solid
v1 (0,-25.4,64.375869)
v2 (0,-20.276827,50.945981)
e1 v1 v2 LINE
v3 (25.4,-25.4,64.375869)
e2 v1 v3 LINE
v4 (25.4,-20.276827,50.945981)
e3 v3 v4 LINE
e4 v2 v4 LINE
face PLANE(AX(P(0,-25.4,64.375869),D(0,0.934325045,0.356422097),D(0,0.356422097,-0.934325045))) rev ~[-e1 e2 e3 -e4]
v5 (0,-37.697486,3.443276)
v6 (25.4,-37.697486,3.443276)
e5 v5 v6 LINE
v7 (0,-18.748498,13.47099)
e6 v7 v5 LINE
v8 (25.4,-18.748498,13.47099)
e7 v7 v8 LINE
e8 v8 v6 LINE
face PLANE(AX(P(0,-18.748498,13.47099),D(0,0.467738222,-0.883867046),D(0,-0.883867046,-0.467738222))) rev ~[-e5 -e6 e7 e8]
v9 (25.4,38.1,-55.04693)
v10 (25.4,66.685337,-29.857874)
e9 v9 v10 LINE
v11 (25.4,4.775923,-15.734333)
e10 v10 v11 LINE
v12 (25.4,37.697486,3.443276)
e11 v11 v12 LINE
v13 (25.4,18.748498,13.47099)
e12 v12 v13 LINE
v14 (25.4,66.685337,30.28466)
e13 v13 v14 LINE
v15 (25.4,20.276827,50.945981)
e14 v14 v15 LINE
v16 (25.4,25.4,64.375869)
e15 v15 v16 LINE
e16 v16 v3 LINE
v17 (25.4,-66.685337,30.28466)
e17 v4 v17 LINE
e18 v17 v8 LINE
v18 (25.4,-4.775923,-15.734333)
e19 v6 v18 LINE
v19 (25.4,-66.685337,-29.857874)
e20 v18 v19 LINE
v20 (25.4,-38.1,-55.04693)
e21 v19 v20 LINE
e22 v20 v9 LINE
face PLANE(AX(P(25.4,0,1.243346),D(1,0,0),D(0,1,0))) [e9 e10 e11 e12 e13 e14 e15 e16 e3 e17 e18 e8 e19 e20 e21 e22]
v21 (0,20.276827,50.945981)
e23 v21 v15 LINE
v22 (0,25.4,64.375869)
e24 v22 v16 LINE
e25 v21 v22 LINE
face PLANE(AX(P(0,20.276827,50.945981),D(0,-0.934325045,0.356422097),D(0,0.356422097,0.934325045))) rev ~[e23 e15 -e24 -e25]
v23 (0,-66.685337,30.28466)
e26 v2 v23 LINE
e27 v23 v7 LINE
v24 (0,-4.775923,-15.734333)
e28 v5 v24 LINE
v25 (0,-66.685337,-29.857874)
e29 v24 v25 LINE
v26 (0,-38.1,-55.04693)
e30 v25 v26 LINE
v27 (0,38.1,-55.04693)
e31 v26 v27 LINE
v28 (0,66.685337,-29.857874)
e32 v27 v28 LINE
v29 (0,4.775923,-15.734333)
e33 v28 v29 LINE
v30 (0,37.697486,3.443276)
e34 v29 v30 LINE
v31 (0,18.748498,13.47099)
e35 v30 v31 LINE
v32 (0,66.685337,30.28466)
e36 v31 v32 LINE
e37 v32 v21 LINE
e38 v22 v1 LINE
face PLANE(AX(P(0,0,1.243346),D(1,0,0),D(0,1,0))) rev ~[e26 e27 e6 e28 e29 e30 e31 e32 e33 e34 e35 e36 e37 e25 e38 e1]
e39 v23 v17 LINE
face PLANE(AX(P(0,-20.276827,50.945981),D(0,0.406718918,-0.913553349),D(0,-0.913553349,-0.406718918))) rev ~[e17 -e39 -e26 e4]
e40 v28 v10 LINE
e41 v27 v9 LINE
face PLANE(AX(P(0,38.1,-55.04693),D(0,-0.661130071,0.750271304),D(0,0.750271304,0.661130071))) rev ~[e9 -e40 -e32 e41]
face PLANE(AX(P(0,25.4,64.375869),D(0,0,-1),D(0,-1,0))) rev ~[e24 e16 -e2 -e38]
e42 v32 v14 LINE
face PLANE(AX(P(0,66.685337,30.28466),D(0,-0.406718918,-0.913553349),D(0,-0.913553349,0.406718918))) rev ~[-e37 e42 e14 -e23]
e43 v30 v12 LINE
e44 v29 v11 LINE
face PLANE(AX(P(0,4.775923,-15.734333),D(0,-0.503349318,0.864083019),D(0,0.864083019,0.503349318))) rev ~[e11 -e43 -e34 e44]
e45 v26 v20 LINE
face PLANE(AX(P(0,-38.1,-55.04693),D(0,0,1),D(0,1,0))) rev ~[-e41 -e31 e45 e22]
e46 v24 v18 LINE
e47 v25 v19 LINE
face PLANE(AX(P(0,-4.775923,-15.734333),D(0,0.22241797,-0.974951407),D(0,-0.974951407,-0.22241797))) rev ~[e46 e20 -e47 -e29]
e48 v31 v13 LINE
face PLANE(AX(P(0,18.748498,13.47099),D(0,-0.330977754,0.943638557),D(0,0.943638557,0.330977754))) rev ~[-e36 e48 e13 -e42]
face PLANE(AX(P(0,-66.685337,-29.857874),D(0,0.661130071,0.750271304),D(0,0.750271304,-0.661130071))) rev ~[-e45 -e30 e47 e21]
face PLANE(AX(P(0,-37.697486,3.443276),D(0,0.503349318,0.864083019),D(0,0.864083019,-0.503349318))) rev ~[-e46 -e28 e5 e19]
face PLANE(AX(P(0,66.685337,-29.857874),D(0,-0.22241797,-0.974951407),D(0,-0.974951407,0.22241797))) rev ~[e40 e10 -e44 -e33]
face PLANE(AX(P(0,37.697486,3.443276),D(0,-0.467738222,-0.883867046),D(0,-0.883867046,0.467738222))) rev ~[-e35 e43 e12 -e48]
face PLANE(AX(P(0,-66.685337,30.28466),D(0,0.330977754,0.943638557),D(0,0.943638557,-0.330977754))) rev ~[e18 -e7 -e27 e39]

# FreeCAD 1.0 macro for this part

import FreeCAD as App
import Part
import Sketcher
Q = App.Units.Quantity


def add_polygon(sketch, points):
    """Adds a closed chain of lines whose ends are joined by coincident constraints."""
    first, n = sketch.GeometryCount, len(points)
    for a, b in zip(points, points[1:] + points[:1]):
        sketch.addGeometry(Part.LineSegment(App.Vector(*a, 0), App.Vector(*b, 0)), False)
    for i in range(n):
        sketch.addConstraint(Sketcher.Constraint("Coincident", first + i, 2, first + (i + 1) % n, 1))

doc = App.newDocument("Part")
params = doc.addObject("Spreadsheet::Sheet", "Params")
for row, (alias, value) in enumerate([
    ("sketch1_width", "2 in"),
    ("sketch1_width2", "3 in"),
    ("sketch1_length", "2 in"),
    ("sketch1_length2", "1.5 in"),
    ("sketch1_length3", "2.5 in"),
    ("pad1_length", "1 in"),
], start=1):
    params.set(f"A{row}", alias)
    params.set(f"B{row}", "=" + value)
    params.setAlias(f"B{row}", alias)

body = doc.addObject("PartDesign::Body", "Body")

sketch1 = doc.addObject("Sketcher::SketchObject", "Sketch")
body.addObject(sketch1)
sketch1.AttachmentSupport = (doc.YZ_Plane, [""])
sketch1.MapMode = "FlatFace"
add_polygon(sketch1, [(25, 64), (-25, 64), (-20, 51), (-67, 30), (-19, 13), (-38, 3), (-5, -16), (-67, -30), (-38, -55), (38, -55), (67, -30), (5, -16), (38, 3), (19, 13), (67, 30), (20, 51)])
sketch1.addConstraint(Sketcher.Constraint("Horizontal", 0))
sketch1.addConstraint(Sketcher.Constraint("Horizontal", 8))
sketch1.addConstraint(Sketcher.Constraint("Symmetric", 6, 2, 9, 2, -2))
sketch1.addConstraint(Sketcher.Constraint("Symmetric", 5, 2, 10, 2, -2))
sketch1.addConstraint(Sketcher.Constraint("Symmetric", 4, 2, 11, 2, -2))
sketch1.addConstraint(Sketcher.Constraint("Symmetric", 3, 2, 12, 2, -2))
sketch1.addConstraint(Sketcher.Constraint("Symmetric", 2, 2, 13, 2, -2))
sketch1.addConstraint(Sketcher.Constraint("Symmetric", 1, 2, 14, 2, -2))
sketch1.addConstraint(Sketcher.Constraint("Vertical", 2, 2, 6, 2))
sketch1.addConstraint(Sketcher.Constraint("Equal", 2, 3))
sketch1.addConstraint(Sketcher.Constraint("Equal", 5, 7))
sketch1.addConstraint(Sketcher.Constraint("Equal", 7, 9))
sketch1.addConstraint(Sketcher.Constraint("Equal", 1, 15))
sketch1.addConstraint(Sketcher.Constraint("DistanceX", 0, 2, 0, 1, Q("2 in")))
sketch1.addConstraint(Sketcher.Constraint("DistanceX", 8, 1, 8, 2, Q("3 in")))
sketch1.addConstraint(Sketcher.Constraint("Distance", 2, Q("2 in")))
sketch1.addConstraint(Sketcher.Constraint("Distance", 5, Q("1.5 in")))
sketch1.addConstraint(Sketcher.Constraint("Distance", 6, Q("2.5 in")))
sketch1.addConstraint(Sketcher.Constraint("DistanceX", 3, 2, -1, 1, 18.748498))
sketch1.addConstraint(Sketcher.Constraint("DistanceY", 5, 2, 0, 2, 80.110202))
sketch1.addConstraint(Sketcher.Constraint("Distance", 4, 21.438731))
sketch1.addConstraint(Sketcher.Constraint("DistanceY", -1, 1, 0, 2, 64.375869))
sketch1.addConstraint(Sketcher.Constraint("DistanceY", -1, 1, 1, 2, 50.945981))
sketch1.addConstraint(Sketcher.Constraint("DistanceY", -1, 1, 2, 2, 30.28466))
sketch1.addConstraint(Sketcher.Constraint("DistanceY", -1, 1, 3, 2, 13.47099))
sketch1.addConstraint(Sketcher.Constraint("DistanceY", 7, 2, -1, 1, 55.04693))
sketch1.setExpression("Constraints[29]", "Params.sketch1_width")
sketch1.setExpression("Constraints[30]", "Params.sketch1_width2")
sketch1.setExpression("Constraints[31]", "Params.sketch1_length")
sketch1.setExpression("Constraints[32]", "Params.sketch1_length2")
sketch1.setExpression("Constraints[33]", "Params.sketch1_length3")
pad1 = doc.addObject("PartDesign::Pad", "Pad")
body.addObject(pad1)
pad1.Profile = sketch1
pad1.setExpression("Length", "Params.pad1_length")

doc.recompute()
